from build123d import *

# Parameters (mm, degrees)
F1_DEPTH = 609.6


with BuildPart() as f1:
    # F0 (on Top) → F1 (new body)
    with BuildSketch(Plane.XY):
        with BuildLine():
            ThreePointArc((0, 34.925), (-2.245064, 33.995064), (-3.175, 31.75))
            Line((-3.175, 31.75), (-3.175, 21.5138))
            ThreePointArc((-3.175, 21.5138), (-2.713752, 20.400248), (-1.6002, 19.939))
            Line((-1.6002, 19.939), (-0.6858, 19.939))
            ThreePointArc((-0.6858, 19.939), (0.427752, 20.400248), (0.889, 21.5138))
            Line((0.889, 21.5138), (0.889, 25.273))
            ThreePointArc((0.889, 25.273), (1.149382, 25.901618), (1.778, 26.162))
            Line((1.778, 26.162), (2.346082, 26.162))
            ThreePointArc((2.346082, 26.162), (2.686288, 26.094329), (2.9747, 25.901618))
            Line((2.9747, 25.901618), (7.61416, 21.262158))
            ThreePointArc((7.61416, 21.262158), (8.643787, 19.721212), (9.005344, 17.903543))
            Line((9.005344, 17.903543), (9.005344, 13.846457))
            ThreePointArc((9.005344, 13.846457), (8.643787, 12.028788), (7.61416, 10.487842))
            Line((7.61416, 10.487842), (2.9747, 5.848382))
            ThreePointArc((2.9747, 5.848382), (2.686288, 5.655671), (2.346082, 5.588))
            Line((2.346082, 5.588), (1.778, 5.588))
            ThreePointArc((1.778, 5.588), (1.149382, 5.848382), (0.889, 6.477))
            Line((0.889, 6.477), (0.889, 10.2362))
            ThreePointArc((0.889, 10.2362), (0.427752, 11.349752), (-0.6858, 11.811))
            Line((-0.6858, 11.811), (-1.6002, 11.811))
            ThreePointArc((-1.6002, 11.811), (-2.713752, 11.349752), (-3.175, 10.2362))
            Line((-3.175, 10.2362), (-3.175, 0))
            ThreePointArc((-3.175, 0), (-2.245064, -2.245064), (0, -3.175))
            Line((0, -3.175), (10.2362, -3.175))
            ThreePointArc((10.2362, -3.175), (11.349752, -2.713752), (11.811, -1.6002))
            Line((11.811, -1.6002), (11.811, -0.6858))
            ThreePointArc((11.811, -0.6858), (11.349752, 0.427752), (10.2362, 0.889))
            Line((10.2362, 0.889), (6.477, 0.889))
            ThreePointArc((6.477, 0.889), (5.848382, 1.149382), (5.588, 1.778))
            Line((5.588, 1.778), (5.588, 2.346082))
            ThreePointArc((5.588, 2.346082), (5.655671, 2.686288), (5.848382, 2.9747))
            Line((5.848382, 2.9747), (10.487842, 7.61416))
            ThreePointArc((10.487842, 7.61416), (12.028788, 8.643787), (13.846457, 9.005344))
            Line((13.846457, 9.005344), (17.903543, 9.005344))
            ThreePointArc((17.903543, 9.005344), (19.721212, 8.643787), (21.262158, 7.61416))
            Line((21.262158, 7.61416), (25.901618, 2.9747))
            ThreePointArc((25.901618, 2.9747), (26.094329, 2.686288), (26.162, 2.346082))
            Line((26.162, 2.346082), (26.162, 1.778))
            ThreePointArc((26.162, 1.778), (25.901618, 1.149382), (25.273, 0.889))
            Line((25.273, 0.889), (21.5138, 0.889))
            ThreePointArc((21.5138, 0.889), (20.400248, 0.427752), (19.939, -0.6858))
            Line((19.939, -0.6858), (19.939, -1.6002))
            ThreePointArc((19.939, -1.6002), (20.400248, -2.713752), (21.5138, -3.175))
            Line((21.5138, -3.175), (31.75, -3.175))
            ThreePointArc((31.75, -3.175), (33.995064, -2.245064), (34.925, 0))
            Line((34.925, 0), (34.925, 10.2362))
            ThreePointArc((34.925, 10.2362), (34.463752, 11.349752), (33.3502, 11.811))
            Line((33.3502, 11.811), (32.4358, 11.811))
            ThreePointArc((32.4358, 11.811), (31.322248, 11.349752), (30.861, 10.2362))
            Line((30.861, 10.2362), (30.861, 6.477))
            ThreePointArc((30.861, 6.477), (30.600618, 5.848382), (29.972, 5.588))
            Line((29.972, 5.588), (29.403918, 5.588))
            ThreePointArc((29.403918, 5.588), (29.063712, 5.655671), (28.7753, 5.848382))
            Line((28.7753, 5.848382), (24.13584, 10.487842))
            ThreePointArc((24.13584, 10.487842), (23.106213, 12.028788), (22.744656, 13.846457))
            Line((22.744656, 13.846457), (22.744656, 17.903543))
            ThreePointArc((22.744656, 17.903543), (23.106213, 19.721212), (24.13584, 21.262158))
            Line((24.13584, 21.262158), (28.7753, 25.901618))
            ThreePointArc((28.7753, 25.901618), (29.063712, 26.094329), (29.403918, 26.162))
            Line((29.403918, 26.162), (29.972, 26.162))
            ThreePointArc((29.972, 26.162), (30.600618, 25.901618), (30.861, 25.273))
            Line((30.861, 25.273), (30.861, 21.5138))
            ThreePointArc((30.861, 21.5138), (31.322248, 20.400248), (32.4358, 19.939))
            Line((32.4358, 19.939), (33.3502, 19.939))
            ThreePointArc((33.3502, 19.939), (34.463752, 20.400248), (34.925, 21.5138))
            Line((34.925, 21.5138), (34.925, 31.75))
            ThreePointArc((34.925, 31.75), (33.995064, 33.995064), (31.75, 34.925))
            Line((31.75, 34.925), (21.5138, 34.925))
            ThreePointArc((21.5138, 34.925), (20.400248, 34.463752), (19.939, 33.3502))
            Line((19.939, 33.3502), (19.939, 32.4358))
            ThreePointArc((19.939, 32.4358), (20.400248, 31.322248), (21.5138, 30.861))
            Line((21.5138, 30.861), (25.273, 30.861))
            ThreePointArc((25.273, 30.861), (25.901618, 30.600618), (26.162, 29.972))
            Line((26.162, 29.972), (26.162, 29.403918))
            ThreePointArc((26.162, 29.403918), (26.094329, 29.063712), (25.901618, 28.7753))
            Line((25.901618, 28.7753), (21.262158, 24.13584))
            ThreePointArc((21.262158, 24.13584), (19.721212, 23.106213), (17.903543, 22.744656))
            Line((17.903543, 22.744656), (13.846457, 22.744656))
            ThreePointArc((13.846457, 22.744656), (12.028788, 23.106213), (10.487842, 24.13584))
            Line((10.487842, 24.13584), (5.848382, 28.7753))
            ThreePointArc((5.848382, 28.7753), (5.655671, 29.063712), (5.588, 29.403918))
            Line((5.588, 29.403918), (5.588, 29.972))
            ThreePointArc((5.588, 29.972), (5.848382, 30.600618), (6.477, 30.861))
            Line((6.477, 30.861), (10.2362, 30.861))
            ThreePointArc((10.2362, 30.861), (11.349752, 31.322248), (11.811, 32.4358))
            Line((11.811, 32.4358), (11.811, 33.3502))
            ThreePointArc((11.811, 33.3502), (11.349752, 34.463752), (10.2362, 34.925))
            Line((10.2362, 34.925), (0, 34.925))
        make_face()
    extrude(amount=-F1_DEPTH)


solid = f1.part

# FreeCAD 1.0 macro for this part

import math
import FreeCAD as App
import Part
import Sketcher
from FreeCAD import Vector
Q = App.Units.Quantity

doc = App.newDocument("Part")
params = doc.addObject("Spreadsheet::Sheet", "Params")
for row, (alias, value) in enumerate([
    ("sketch1_radius", "0.125 in"),
    ("sketch1_radius2", "0.062 in"),
    ("sketch1_radius3", "0.035 in"),
    ("sketch1_radius4", "0.0349999 in"),
    ("sketch1_radius5", "0.187 in"),
    ("pad1_length", "24 in"),
], start=1):
    params.set(f"A{row}", alias)
    params.set(f"B{row}", "=" + value)
    params.setAlias(f"B{row}", alias)

body = doc.addObject("PartDesign::Body", "Body")

# Sketch on XY plane
sketch1 = body.newObject("Sketcher::SketchObject", "Sketch")
sketch1.AttachmentSupport = (doc.getObject("XY_Plane"), [""])
sketch1.MapMode = "FlatFace"
sketch1.addGeometry([
    Part.ArcOfCircle(Part.Circle(Vector(0, 31.7, 0), Vector(0, 0, 1), 3.2), math.radians(90), math.radians(180)),  # 0
    Part.LineSegment(Vector(-3.2, 31.8, 0), Vector(-3.2, 21.5, 0)),  # 1
    Part.ArcOfCircle(Part.Circle(Vector(-1.6, 21.5, 0), Vector(0, 0, 1), 1.6), math.radians(180), math.radians(270)),  # 2
    Part.LineSegment(Vector(-1.6, 19.9, 0), Vector(-0.7, 19.9, 0)),  # 3
    Part.ArcOfCircle(Part.Circle(Vector(-0.7, 21.5, 0), Vector(0, 0, 1), 1.6), math.radians(-90), math.radians(0)),  # 4
    Part.LineSegment(Vector(0.9, 21.5, 0), Vector(0.9, 25.3, 0)),  # 5
    Part.ArcOfCircle(Part.Circle(Vector(1.8, 25.3, 0), Vector(0, 0, 1), 0.9), math.radians(90), math.radians(180)),  # 6
    Part.LineSegment(Vector(1.8, 26.2, 0), Vector(2.3, 26.2, 0)),  # 7
    Part.ArcOfCircle(Part.Circle(Vector(2.3, 25.3, 0), Vector(0, 0, 1), 0.9), math.radians(45), math.radians(90)),  # 8
    Part.LineSegment(Vector(3, 25.9, 0), Vector(7.6, 21.3, 0)),  # 9
    Part.ArcOfCircle(Part.Circle(Vector(4.3, 17.9, 0), Vector(0, 0, 1), 4.7), math.radians(0), math.radians(45)),  # 10
    Part.LineSegment(Vector(9, 17.9, 0), Vector(9, 13.8, 0)),  # 11
    Part.ArcOfCircle(Part.Circle(Vector(4.3, 13.8, 0), Vector(0, 0, 1), 4.7), math.radians(-45), math.radians(0)),  # 12
    Part.LineSegment(Vector(7.6, 10.5, 0), Vector(3, 5.8, 0)),  # 13
    Part.ArcOfCircle(Part.Circle(Vector(2.3, 6.5, 0), Vector(0, 0, 1), 0.9), math.radians(-90), math.radians(-45)),  # 14
    Part.LineSegment(Vector(2.3, 5.6, 0), Vector(1.8, 5.6, 0)),  # 15
    Part.ArcOfCircle(Part.Circle(Vector(1.8, 6.5, 0), Vector(0, 0, 1), 0.9), math.radians(180), math.radians(270)),  # 16
    Part.LineSegment(Vector(0.9, 6.5, 0), Vector(0.9, 10.2, 0)),  # 17
    Part.ArcOfCircle(Part.Circle(Vector(-0.7, 10.2, 0), Vector(0, 0, 1), 1.6), math.radians(0), math.radians(90)),  # 18
    Part.LineSegment(Vector(-0.7, 11.8, 0), Vector(-1.6, 11.8, 0)),  # 19
    Part.ArcOfCircle(Part.Circle(Vector(-1.6, 10.2, 0), Vector(0, 0, 1), 1.6), math.radians(90), math.radians(180)),  # 20
    Part.LineSegment(Vector(-3.2, 10.2, 0), Vector(-3.2, 0, 0)),  # 21
    Part.ArcOfCircle(Part.Circle(Vector(0, 0, 0), Vector(0, 0, 1), 3.2), math.radians(-180), math.radians(-90)),  # 22
    Part.LineSegment(Vector(0, -3.2, 0), Vector(10.2, -3.2, 0)),  # 23
    Part.ArcOfCircle(Part.Circle(Vector(10.2, -1.6, 0), Vector(0, 0, 1), 1.6), math.radians(-90), math.radians(0)),  # 24
    Part.LineSegment(Vector(11.8, -1.6, 0), Vector(11.8, -0.7, 0)),  # 25
    Part.ArcOfCircle(Part.Circle(Vector(10.2, -0.7, 0), Vector(0, 0, 1), 1.6), math.radians(0), math.radians(90)),  # 26
    Part.LineSegment(Vector(10.2, 0.9, 0), Vector(6.5, 0.9, 0)),  # 27
    Part.ArcOfCircle(Part.Circle(Vector(6.5, 1.8, 0), Vector(0, 0, 1), 0.9), math.radians(180), math.radians(270)),  # 28
    Part.LineSegment(Vector(5.6, 1.8, 0), Vector(5.6, 2.3, 0)),  # 29
    Part.ArcOfCircle(Part.Circle(Vector(6.5, 2.3, 0), Vector(0, 0, 1), 0.9), math.radians(135), math.radians(180)),  # 30
    Part.LineSegment(Vector(5.8, 3, 0), Vector(10.5, 7.6, 0)),  # 31
    Part.ArcOfCircle(Part.Circle(Vector(13.8, 4.3, 0), Vector(0, 0, 1), 4.7), math.radians(90), math.radians(135)),  # 32
    Part.LineSegment(Vector(13.8, 9, 0), Vector(17.9, 9, 0)),  # 33
    Part.ArcOfCircle(Part.Circle(Vector(17.9, 4.3, 0), Vector(0, 0, 1), 4.7), math.radians(45), math.radians(90)),  # 34
    Part.LineSegment(Vector(21.3, 7.6, 0), Vector(25.9, 3, 0)),  # 35
    Part.ArcOfCircle(Part.Circle(Vector(25.3, 2.3, 0), Vector(0, 0, 1), 0.9), math.radians(0), math.radians(45)),  # 36
    Part.LineSegment(Vector(26.2, 2.3, 0), Vector(26.2, 1.8, 0)),  # 37
    Part.ArcOfCircle(Part.Circle(Vector(25.3, 1.8, 0), Vector(0, 0, 1), 0.9), math.radians(-90), math.radians(0)),  # 38
    Part.LineSegment(Vector(25.3, 0.9, 0), Vector(21.5, 0.9, 0)),  # 39
    Part.ArcOfCircle(Part.Circle(Vector(21.5, -0.7, 0), Vector(0, 0, 1), 1.6), math.radians(90), math.radians(180)),  # 40
    Part.LineSegment(Vector(19.9, -0.7, 0), Vector(19.9, -1.6, 0)),  # 41
    Part.ArcOfCircle(Part.Circle(Vector(21.5, -1.6, 0), Vector(0, 0, 1), 1.6), math.radians(180), math.radians(270)),  # 42
    Part.LineSegment(Vector(21.5, -3.2, 0), Vector(31.8, -3.2, 0)),  # 43
    Part.ArcOfCircle(Part.Circle(Vector(31.7, 0, 0), Vector(0, 0, 1), 3.2), math.radians(-90), math.radians(0)),  # 44
    Part.LineSegment(Vector(34.9, 0, 0), Vector(34.9, 10.2, 0)),  # 45
    Part.ArcOfCircle(Part.Circle(Vector(33.4, 10.2, 0), Vector(0, 0, 1), 1.6), math.radians(0), math.radians(90)),  # 46
    Part.LineSegment(Vector(33.4, 11.8, 0), Vector(32.4, 11.8, 0)),  # 47
    Part.ArcOfCircle(Part.Circle(Vector(32.4, 10.2, 0), Vector(0, 0, 1), 1.6), math.radians(90), math.radians(180)),  # 48
    Part.LineSegment(Vector(30.9, 10.2, 0), Vector(30.9, 6.5, 0)),  # 49
    Part.ArcOfCircle(Part.Circle(Vector(30, 6.5, 0), Vector(0, 0, 1), 0.9), math.radians(-90), math.radians(0)),  # 50
    Part.LineSegment(Vector(30, 5.6, 0), Vector(29.4, 5.6, 0)),  # 51
    Part.ArcOfCircle(Part.Circle(Vector(29.4, 6.5, 0), Vector(0, 0, 1), 0.9), math.radians(-135), math.radians(-90)),  # 52
    Part.LineSegment(Vector(28.8, 5.8, 0), Vector(24.1, 10.5, 0)),  # 53
    Part.ArcOfCircle(Part.Circle(Vector(27.5, 13.8, 0), Vector(0, 0, 1), 4.7), math.radians(-180), math.radians(-135)),  # 54
    Part.LineSegment(Vector(22.7, 13.8, 0), Vector(22.7, 17.9, 0)),  # 55
    Part.ArcOfCircle(Part.Circle(Vector(27.5, 17.9, 0), Vector(0, 0, 1), 4.7), math.radians(135), math.radians(180)),  # 56
    Part.LineSegment(Vector(24.1, 21.3, 0), Vector(28.8, 25.9, 0)),  # 57
    Part.ArcOfCircle(Part.Circle(Vector(29.4, 25.3, 0), Vector(0, 0, 1), 0.9), math.radians(90), math.radians(135)),  # 58
    Part.LineSegment(Vector(29.4, 26.2, 0), Vector(30, 26.2, 0)),  # 59
    Part.ArcOfCircle(Part.Circle(Vector(30, 25.3, 0), Vector(0, 0, 1), 0.9), math.radians(0), math.radians(90)),  # 60
    Part.LineSegment(Vector(30.9, 25.3, 0), Vector(30.9, 21.5, 0)),  # 61
    Part.ArcOfCircle(Part.Circle(Vector(32.4, 21.5, 0), Vector(0, 0, 1), 1.6), math.radians(180), math.radians(270)),  # 62
    Part.LineSegment(Vector(32.4, 19.9, 0), Vector(33.4, 19.9, 0)),  # 63
    Part.ArcOfCircle(Part.Circle(Vector(33.4, 21.5, 0), Vector(0, 0, 1), 1.6), math.radians(-90), math.radians(0)),  # 64
    Part.LineSegment(Vector(34.9, 21.5, 0), Vector(34.9, 31.8, 0)),  # 65
    Part.ArcOfCircle(Part.Circle(Vector(31.7, 31.7, 0), Vector(0, 0, 1), 3.2), math.radians(0), math.radians(90)),  # 66
    Part.LineSegment(Vector(31.8, 34.9, 0), Vector(21.5, 34.9, 0)),  # 67
    Part.ArcOfCircle(Part.Circle(Vector(21.5, 33.4, 0), Vector(0, 0, 1), 1.6), math.radians(90), math.radians(180)),  # 68
    Part.LineSegment(Vector(19.9, 33.4, 0), Vector(19.9, 32.4, 0)),  # 69
    Part.ArcOfCircle(Part.Circle(Vector(21.5, 32.4, 0), Vector(0, 0, 1), 1.6), math.radians(180), math.radians(270)),  # 70
    Part.LineSegment(Vector(21.5, 30.9, 0), Vector(25.3, 30.9, 0)),  # 71
    Part.ArcOfCircle(Part.Circle(Vector(25.3, 30, 0), Vector(0, 0, 1), 0.9), math.radians(0), math.radians(90)),  # 72
    Part.LineSegment(Vector(26.2, 30, 0), Vector(26.2, 29.4, 0)),  # 73
    Part.ArcOfCircle(Part.Circle(Vector(25.3, 29.4, 0), Vector(0, 0, 1), 0.9), math.radians(-45), math.radians(0)),  # 74
    Part.LineSegment(Vector(25.9, 28.8, 0), Vector(21.3, 24.1, 0)),  # 75
    Part.ArcOfCircle(Part.Circle(Vector(17.9, 27.5, 0), Vector(0, 0, 1), 4.7), math.radians(-90), math.radians(-45)),  # 76
    Part.LineSegment(Vector(17.9, 22.7, 0), Vector(13.8, 22.7, 0)),  # 77
    Part.ArcOfCircle(Part.Circle(Vector(13.8, 27.5, 0), Vector(0, 0, 1), 4.7), math.radians(-135), math.radians(-90)),  # 78
    Part.LineSegment(Vector(10.5, 24.1, 0), Vector(5.8, 28.8, 0)),  # 79
    Part.ArcOfCircle(Part.Circle(Vector(6.5, 29.4, 0), Vector(0, 0, 1), 0.9), math.radians(180), math.radians(225)),  # 80
    Part.LineSegment(Vector(5.6, 29.4, 0), Vector(5.6, 30, 0)),  # 81
    Part.ArcOfCircle(Part.Circle(Vector(6.5, 30, 0), Vector(0, 0, 1), 0.9), math.radians(90), math.radians(180)),  # 82
    Part.LineSegment(Vector(6.5, 30.9, 0), Vector(10.2, 30.9, 0)),  # 83
    Part.ArcOfCircle(Part.Circle(Vector(10.2, 32.4, 0), Vector(0, 0, 1), 1.6), math.radians(-90), math.radians(0)),  # 84
    Part.LineSegment(Vector(11.8, 32.4, 0), Vector(11.8, 33.4, 0)),  # 85
    Part.ArcOfCircle(Part.Circle(Vector(10.2, 33.4, 0), Vector(0, 0, 1), 1.6), math.radians(0), math.radians(90)),  # 86
    Part.LineSegment(Vector(10.2, 34.9, 0), Vector(0, 34.9, 0)),  # 87
], False)
sketch1.addConstraint([
    Sketcher.Constraint("Tangent", 0, 2, 1, 1),
    Sketcher.Constraint("Tangent", 1, 2, 2, 1),
    Sketcher.Constraint("Tangent", 2, 2, 3, 1),
    Sketcher.Constraint("Tangent", 3, 2, 4, 1),
    Sketcher.Constraint("Tangent", 4, 2, 5, 1),
    Sketcher.Constraint("Tangent", 5, 2, 6, 2),
    Sketcher.Constraint("Tangent", 6, 1, 7, 1),
    Sketcher.Constraint("Tangent", 7, 2, 8, 2),
    Sketcher.Constraint("Tangent", 8, 1, 9, 1),
    Sketcher.Constraint("Tangent", 9, 2, 10, 2),
    Sketcher.Constraint("Tangent", 10, 1, 11, 1),
    Sketcher.Constraint("Tangent", 11, 2, 12, 2),
    Sketcher.Constraint("Tangent", 12, 1, 13, 1),
    Sketcher.Constraint("Tangent", 13, 2, 14, 2),
    Sketcher.Constraint("Tangent", 14, 1, 15, 1),
    Sketcher.Constraint("Tangent", 15, 2, 16, 2),
    Sketcher.Constraint("Tangent", 16, 1, 17, 1),
    Sketcher.Constraint("Tangent", 17, 2, 18, 1),
    Sketcher.Constraint("Tangent", 18, 2, 19, 1),
    Sketcher.Constraint("Tangent", 19, 2, 20, 1),
    Sketcher.Constraint("Tangent", 20, 2, 21, 1),
    Sketcher.Constraint("Tangent", 21, 2, 22, 1),
    Sketcher.Constraint("Tangent", 22, 2, 23, 1),
    Sketcher.Constraint("Tangent", 23, 2, 24, 1),
    Sketcher.Constraint("Tangent", 24, 2, 25, 1),
    Sketcher.Constraint("Tangent", 25, 2, 26, 1),
    Sketcher.Constraint("Tangent", 26, 2, 27, 1),
    Sketcher.Constraint("Tangent", 27, 2, 28, 2),
    Sketcher.Constraint("Tangent", 28, 1, 29, 1),
    Sketcher.Constraint("Tangent", 29, 2, 30, 2),
    Sketcher.Constraint("Tangent", 30, 1, 31, 1),
    Sketcher.Constraint("Tangent", 31, 2, 32, 2),
    Sketcher.Constraint("Tangent", 32, 1, 33, 1),
    Sketcher.Constraint("Tangent", 33, 2, 34, 2),
    Sketcher.Constraint("Tangent", 34, 1, 35, 1),
    Sketcher.Constraint("Tangent", 35, 2, 36, 2),
    Sketcher.Constraint("Tangent", 36, 1, 37, 1),
    Sketcher.Constraint("Tangent", 37, 2, 38, 2),
    Sketcher.Constraint("Tangent", 38, 1, 39, 1),
    Sketcher.Constraint("Tangent", 39, 2, 40, 1),
    Sketcher.Constraint("Tangent", 40, 2, 41, 1),
    Sketcher.Constraint("Tangent", 41, 2, 42, 1),
    Sketcher.Constraint("Tangent", 42, 2, 43, 1),
    Sketcher.Constraint("Tangent", 43, 2, 44, 1),
    Sketcher.Constraint("Tangent", 44, 2, 45, 1),
    Sketcher.Constraint("Tangent", 45, 2, 46, 1),
    Sketcher.Constraint("Tangent", 46, 2, 47, 1),
    Sketcher.Constraint("Tangent", 47, 2, 48, 1),
    Sketcher.Constraint("Tangent", 48, 2, 49, 1),
    Sketcher.Constraint("Tangent", 49, 2, 50, 2),
    Sketcher.Constraint("Tangent", 50, 1, 51, 1),
    Sketcher.Constraint("Tangent", 51, 2, 52, 2),
    Sketcher.Constraint("Tangent", 52, 1, 53, 1),
    Sketcher.Constraint("Tangent", 53, 2, 54, 2),
    Sketcher.Constraint("Tangent", 54, 1, 55, 1),
    Sketcher.Constraint("Tangent", 55, 2, 56, 2),
    Sketcher.Constraint("Tangent", 56, 1, 57, 1),
    Sketcher.Constraint("Tangent", 57, 2, 58, 2),
    Sketcher.Constraint("Tangent", 58, 1, 59, 1),
    Sketcher.Constraint("Tangent", 59, 2, 60, 2),
    Sketcher.Constraint("Tangent", 60, 1, 61, 1),
    Sketcher.Constraint("Tangent", 61, 2, 62, 1),
    Sketcher.Constraint("Tangent", 62, 2, 63, 1),
    Sketcher.Constraint("Tangent", 63, 2, 64, 1),
    Sketcher.Constraint("Tangent", 64, 2, 65, 1),
    Sketcher.Constraint("Tangent", 65, 2, 66, 1),
    Sketcher.Constraint("Tangent", 66, 2, 67, 1),
    Sketcher.Constraint("Tangent", 67, 2, 68, 1),
    Sketcher.Constraint("Tangent", 68, 2, 69, 1),
    Sketcher.Constraint("Tangent", 69, 2, 70, 1),
    Sketcher.Constraint("Tangent", 70, 2, 71, 1),
    Sketcher.Constraint("Tangent", 71, 2, 72, 2),
    Sketcher.Constraint("Tangent", 72, 1, 73, 1),
    Sketcher.Constraint("Tangent", 73, 2, 74, 2),
    Sketcher.Constraint("Tangent", 74, 1, 75, 1),
    Sketcher.Constraint("Tangent", 75, 2, 76, 2),
    Sketcher.Constraint("Tangent", 76, 1, 77, 1),
    Sketcher.Constraint("Tangent", 77, 2, 78, 2),
    Sketcher.Constraint("Tangent", 78, 1, 79, 1),
    Sketcher.Constraint("Tangent", 79, 2, 80, 2),
    Sketcher.Constraint("Tangent", 80, 1, 81, 1),
    Sketcher.Constraint("Tangent", 81, 2, 82, 2),
    Sketcher.Constraint("Tangent", 82, 1, 83, 1),
    Sketcher.Constraint("Tangent", 83, 2, 84, 1),
    Sketcher.Constraint("Tangent", 84, 2, 85, 1),
    Sketcher.Constraint("Tangent", 85, 2, 86, 1),
    Sketcher.Constraint("Tangent", 86, 2, 87, 1),
    Sketcher.Constraint("Tangent", 87, 2, 0, 1),
    Sketcher.Constraint("Vertical", 1),
    Sketcher.Constraint("Horizontal", 3),
    Sketcher.Constraint("Vertical", 5),
    Sketcher.Constraint("Horizontal", 7),
    Sketcher.Constraint("Vertical", 11),
    Sketcher.Constraint("Horizontal", 15),
    Sketcher.Constraint("Vertical", 17),
    Sketcher.Constraint("Horizontal", 19),
    Sketcher.Constraint("Vertical", 21),
    Sketcher.Constraint("Horizontal", 23),
    Sketcher.Constraint("Vertical", 25),
    Sketcher.Constraint("Horizontal", 27),
    Sketcher.Constraint("Vertical", 29),
    Sketcher.Constraint("Horizontal", 33),
    Sketcher.Constraint("Vertical", 37),
    Sketcher.Constraint("Horizontal", 39),
    Sketcher.Constraint("Vertical", 41),
    Sketcher.Constraint("Horizontal", 43),
    Sketcher.Constraint("Vertical", 45),
    Sketcher.Constraint("Horizontal", 47),
    Sketcher.Constraint("Vertical", 49),
    Sketcher.Constraint("Horizontal", 51),
    Sketcher.Constraint("Vertical", 55),
    Sketcher.Constraint("Horizontal", 59),
    Sketcher.Constraint("Vertical", 61),
    Sketcher.Constraint("Horizontal", 63),
    Sketcher.Constraint("Vertical", 65),
    Sketcher.Constraint("Horizontal", 67),
    Sketcher.Constraint("Vertical", 69),
    Sketcher.Constraint("Horizontal", 71),
    Sketcher.Constraint("Vertical", 73),
    Sketcher.Constraint("Horizontal", 77),
    Sketcher.Constraint("Vertical", 81),
    Sketcher.Constraint("Horizontal", 83),
    Sketcher.Constraint("Vertical", 85),
    Sketcher.Constraint("Horizontal", 87),
    Sketcher.Constraint("Coincident", 22, 3, -1, 1),
    Sketcher.Constraint("Equal", 2, 4),
    Sketcher.Constraint("Equal", 10, 12),
    Sketcher.Constraint("Equal", 8, 14),
    Sketcher.Constraint("Equal", 6, 16),
    Sketcher.Constraint("Equal", 4, 18),
    Sketcher.Constraint("Equal", 18, 20),
    Sketcher.Constraint("Equal", 0, 22),
    Sketcher.Constraint("Equal", 20, 24),
    Sketcher.Constraint("Equal", 24, 26),
    Sketcher.Constraint("Equal", 16, 28),
    Sketcher.Constraint("Equal", 14, 30),
    Sketcher.Constraint("Equal", 12, 32),
    Sketcher.Constraint("Equal", 32, 34),
    Sketcher.Constraint("Equal", 30, 36),
    Sketcher.Constraint("Equal", 28, 38),
    Sketcher.Constraint("Equal", 26, 40),
    Sketcher.Constraint("Equal", 40, 42),
    Sketcher.Constraint("Equal", 22, 44),
    Sketcher.Constraint("Equal", 42, 46),
    Sketcher.Constraint("Equal", 46, 48),
    Sketcher.Constraint("Equal", 38, 50),
    Sketcher.Constraint("Equal", 36, 52),
    Sketcher.Constraint("Equal", 34, 54),
    Sketcher.Constraint("Equal", 54, 56),
    Sketcher.Constraint("Equal", 52, 58),
    Sketcher.Constraint("Equal", 50, 60),
    Sketcher.Constraint("Equal", 48, 62),
    Sketcher.Constraint("Equal", 62, 64),
    Sketcher.Constraint("Equal", 44, 66),
    Sketcher.Constraint("Equal", 64, 68),
    Sketcher.Constraint("Equal", 68, 70),
    Sketcher.Constraint("Equal", 60, 72),
    Sketcher.Constraint("Equal", 58, 74),
    Sketcher.Constraint("Equal", 56, 76),
    Sketcher.Constraint("Equal", 76, 78),
    Sketcher.Constraint("Equal", 74, 80),
    Sketcher.Constraint("Equal", 72, 82),
    Sketcher.Constraint("Equal", 70, 84),
    Sketcher.Constraint("Equal", 84, 86),
    Sketcher.Constraint("PointOnObject", 0, 3, -2),
    Sketcher.Constraint("PointOnObject", 44, 3, -1),
    Sketcher.Constraint("Perpendicular", 9, 13),
    Sketcher.Constraint("Parallel", 13, 31),
    Sketcher.Constraint("Perpendicular", 31, 35),
    Sketcher.Constraint("Parallel", 35, 53),
    Sketcher.Constraint("Perpendicular", 53, 57),
    Sketcher.Constraint("Parallel", 57, 75),
    Sketcher.Constraint("Perpendicular", 75, 79),
    Sketcher.Constraint("Horizontal", 30, 3, 36, 3),
    Sketcher.Constraint("Horizontal", 28, 3, 38, 3),
    Sketcher.Constraint("Horizontal", 20, 3, 46, 3),
    Sketcher.Constraint("Horizontal", 16, 3, 50, 3),
    Sketcher.Constraint("Horizontal", 12, 3, 54, 3),
    Sketcher.Constraint("Horizontal", 10, 3, 56, 3),
    Sketcher.Constraint("Horizontal", 8, 3, 58, 3),
    Sketcher.Constraint("Horizontal", 4, 3, 62, 3),
    Sketcher.Constraint("Horizontal", 0, 3, 66, 3),
    Sketcher.Constraint("Horizontal", 74, 3, 80, 3),
    Sketcher.Constraint("Horizontal", 72, 3, 82, 3),
    Sketcher.Constraint("Horizontal", 31, 2, 34, 1),
    Sketcher.Constraint("Vertical", 8, 3, 14, 3),
    Sketcher.Constraint("Vertical", 6, 3, 16, 3),
    Sketcher.Constraint("Vertical", 50, 3, 60, 3),
    Sketcher.Constraint("Vertical", 46, 3, 64, 3),
    Sketcher.Constraint("Vertical", 42, 3, 68, 3),
    Sketcher.Constraint("Vertical", 38, 3, 72, 3),
    Sketcher.Constraint("Vertical", 34, 3, 76, 3),
    Sketcher.Constraint("Vertical", 32, 3, 78, 3),
    Sketcher.Constraint("Vertical", 26, 3, 84, 3),
    Sketcher.Constraint("Equal", 27, 39),
    Sketcher.Constraint("Equal", 23, 43),
    Sketcher.Constraint("Equal", 19, 47),
    Sketcher.Constraint("Equal", 15, 51),
    Sketcher.Constraint("Equal", 87, 1),
    Sketcher.Constraint("Equal", 83, 5),
    Sketcher.Constraint("Equal", 77, 11),
    Sketcher.Constraint("Equal", 5, 17),
    Sketcher.Constraint("Equal", 1, 21),
    Sketcher.Constraint("Equal", 63, 25),
    Sketcher.Constraint("Equal", 59, 29),
    Sketcher.Constraint("Equal", 41, 69),
    Sketcher.Constraint("Equal", 37, 73),
    Sketcher.Constraint("Equal", 13, 31),
    Sketcher.Constraint("Radius", 0, Q("0.125 in")),
    Sketcher.Constraint("Radius", 2, Q("0.062 in")),
    Sketcher.Constraint("Radius", 6, Q("0.035 in")),
    Sketcher.Constraint("Radius", 8, Q("0.0349999 in")),
    Sketcher.Constraint("Radius", 10, Q("0.187 in")),
    Sketcher.Constraint("DistanceX", 3, 1, 3, 2, Q("0.036 in")),
    Sketcher.Constraint("DistanceX", 23, 1, 23, 2, Q("0.403 in")),
    Sketcher.Constraint("DistanceX", 27, 2, 27, 1, Q("0.148 in")),
    Sketcher.Constraint("DistanceY", -1, 1, 0, 3, Q("1.25 in")),
    Sketcher.Constraint("DistanceX", 7, 1, 7, 2, 0.568082),
    Sketcher.Constraint("DistanceX", 33, 1, 33, 2, 4.057086),
])
sketch1.setExpression("Constraints[208]", "Params.sketch1_radius")
sketch1.setExpression("Constraints[209]", "Params.sketch1_radius2")
sketch1.setExpression("Constraints[210]", "Params.sketch1_radius3")
sketch1.setExpression("Constraints[211]", "Params.sketch1_radius4")
sketch1.setExpression("Constraints[212]", "Params.sketch1_radius5")
pad1 = body.newObject("PartDesign::Pad", "Pad")
pad1.Profile = sketch1
pad1.setExpression("Length", "Params.pad1_length")
pad1.Reversed = True

doc.recompute()
